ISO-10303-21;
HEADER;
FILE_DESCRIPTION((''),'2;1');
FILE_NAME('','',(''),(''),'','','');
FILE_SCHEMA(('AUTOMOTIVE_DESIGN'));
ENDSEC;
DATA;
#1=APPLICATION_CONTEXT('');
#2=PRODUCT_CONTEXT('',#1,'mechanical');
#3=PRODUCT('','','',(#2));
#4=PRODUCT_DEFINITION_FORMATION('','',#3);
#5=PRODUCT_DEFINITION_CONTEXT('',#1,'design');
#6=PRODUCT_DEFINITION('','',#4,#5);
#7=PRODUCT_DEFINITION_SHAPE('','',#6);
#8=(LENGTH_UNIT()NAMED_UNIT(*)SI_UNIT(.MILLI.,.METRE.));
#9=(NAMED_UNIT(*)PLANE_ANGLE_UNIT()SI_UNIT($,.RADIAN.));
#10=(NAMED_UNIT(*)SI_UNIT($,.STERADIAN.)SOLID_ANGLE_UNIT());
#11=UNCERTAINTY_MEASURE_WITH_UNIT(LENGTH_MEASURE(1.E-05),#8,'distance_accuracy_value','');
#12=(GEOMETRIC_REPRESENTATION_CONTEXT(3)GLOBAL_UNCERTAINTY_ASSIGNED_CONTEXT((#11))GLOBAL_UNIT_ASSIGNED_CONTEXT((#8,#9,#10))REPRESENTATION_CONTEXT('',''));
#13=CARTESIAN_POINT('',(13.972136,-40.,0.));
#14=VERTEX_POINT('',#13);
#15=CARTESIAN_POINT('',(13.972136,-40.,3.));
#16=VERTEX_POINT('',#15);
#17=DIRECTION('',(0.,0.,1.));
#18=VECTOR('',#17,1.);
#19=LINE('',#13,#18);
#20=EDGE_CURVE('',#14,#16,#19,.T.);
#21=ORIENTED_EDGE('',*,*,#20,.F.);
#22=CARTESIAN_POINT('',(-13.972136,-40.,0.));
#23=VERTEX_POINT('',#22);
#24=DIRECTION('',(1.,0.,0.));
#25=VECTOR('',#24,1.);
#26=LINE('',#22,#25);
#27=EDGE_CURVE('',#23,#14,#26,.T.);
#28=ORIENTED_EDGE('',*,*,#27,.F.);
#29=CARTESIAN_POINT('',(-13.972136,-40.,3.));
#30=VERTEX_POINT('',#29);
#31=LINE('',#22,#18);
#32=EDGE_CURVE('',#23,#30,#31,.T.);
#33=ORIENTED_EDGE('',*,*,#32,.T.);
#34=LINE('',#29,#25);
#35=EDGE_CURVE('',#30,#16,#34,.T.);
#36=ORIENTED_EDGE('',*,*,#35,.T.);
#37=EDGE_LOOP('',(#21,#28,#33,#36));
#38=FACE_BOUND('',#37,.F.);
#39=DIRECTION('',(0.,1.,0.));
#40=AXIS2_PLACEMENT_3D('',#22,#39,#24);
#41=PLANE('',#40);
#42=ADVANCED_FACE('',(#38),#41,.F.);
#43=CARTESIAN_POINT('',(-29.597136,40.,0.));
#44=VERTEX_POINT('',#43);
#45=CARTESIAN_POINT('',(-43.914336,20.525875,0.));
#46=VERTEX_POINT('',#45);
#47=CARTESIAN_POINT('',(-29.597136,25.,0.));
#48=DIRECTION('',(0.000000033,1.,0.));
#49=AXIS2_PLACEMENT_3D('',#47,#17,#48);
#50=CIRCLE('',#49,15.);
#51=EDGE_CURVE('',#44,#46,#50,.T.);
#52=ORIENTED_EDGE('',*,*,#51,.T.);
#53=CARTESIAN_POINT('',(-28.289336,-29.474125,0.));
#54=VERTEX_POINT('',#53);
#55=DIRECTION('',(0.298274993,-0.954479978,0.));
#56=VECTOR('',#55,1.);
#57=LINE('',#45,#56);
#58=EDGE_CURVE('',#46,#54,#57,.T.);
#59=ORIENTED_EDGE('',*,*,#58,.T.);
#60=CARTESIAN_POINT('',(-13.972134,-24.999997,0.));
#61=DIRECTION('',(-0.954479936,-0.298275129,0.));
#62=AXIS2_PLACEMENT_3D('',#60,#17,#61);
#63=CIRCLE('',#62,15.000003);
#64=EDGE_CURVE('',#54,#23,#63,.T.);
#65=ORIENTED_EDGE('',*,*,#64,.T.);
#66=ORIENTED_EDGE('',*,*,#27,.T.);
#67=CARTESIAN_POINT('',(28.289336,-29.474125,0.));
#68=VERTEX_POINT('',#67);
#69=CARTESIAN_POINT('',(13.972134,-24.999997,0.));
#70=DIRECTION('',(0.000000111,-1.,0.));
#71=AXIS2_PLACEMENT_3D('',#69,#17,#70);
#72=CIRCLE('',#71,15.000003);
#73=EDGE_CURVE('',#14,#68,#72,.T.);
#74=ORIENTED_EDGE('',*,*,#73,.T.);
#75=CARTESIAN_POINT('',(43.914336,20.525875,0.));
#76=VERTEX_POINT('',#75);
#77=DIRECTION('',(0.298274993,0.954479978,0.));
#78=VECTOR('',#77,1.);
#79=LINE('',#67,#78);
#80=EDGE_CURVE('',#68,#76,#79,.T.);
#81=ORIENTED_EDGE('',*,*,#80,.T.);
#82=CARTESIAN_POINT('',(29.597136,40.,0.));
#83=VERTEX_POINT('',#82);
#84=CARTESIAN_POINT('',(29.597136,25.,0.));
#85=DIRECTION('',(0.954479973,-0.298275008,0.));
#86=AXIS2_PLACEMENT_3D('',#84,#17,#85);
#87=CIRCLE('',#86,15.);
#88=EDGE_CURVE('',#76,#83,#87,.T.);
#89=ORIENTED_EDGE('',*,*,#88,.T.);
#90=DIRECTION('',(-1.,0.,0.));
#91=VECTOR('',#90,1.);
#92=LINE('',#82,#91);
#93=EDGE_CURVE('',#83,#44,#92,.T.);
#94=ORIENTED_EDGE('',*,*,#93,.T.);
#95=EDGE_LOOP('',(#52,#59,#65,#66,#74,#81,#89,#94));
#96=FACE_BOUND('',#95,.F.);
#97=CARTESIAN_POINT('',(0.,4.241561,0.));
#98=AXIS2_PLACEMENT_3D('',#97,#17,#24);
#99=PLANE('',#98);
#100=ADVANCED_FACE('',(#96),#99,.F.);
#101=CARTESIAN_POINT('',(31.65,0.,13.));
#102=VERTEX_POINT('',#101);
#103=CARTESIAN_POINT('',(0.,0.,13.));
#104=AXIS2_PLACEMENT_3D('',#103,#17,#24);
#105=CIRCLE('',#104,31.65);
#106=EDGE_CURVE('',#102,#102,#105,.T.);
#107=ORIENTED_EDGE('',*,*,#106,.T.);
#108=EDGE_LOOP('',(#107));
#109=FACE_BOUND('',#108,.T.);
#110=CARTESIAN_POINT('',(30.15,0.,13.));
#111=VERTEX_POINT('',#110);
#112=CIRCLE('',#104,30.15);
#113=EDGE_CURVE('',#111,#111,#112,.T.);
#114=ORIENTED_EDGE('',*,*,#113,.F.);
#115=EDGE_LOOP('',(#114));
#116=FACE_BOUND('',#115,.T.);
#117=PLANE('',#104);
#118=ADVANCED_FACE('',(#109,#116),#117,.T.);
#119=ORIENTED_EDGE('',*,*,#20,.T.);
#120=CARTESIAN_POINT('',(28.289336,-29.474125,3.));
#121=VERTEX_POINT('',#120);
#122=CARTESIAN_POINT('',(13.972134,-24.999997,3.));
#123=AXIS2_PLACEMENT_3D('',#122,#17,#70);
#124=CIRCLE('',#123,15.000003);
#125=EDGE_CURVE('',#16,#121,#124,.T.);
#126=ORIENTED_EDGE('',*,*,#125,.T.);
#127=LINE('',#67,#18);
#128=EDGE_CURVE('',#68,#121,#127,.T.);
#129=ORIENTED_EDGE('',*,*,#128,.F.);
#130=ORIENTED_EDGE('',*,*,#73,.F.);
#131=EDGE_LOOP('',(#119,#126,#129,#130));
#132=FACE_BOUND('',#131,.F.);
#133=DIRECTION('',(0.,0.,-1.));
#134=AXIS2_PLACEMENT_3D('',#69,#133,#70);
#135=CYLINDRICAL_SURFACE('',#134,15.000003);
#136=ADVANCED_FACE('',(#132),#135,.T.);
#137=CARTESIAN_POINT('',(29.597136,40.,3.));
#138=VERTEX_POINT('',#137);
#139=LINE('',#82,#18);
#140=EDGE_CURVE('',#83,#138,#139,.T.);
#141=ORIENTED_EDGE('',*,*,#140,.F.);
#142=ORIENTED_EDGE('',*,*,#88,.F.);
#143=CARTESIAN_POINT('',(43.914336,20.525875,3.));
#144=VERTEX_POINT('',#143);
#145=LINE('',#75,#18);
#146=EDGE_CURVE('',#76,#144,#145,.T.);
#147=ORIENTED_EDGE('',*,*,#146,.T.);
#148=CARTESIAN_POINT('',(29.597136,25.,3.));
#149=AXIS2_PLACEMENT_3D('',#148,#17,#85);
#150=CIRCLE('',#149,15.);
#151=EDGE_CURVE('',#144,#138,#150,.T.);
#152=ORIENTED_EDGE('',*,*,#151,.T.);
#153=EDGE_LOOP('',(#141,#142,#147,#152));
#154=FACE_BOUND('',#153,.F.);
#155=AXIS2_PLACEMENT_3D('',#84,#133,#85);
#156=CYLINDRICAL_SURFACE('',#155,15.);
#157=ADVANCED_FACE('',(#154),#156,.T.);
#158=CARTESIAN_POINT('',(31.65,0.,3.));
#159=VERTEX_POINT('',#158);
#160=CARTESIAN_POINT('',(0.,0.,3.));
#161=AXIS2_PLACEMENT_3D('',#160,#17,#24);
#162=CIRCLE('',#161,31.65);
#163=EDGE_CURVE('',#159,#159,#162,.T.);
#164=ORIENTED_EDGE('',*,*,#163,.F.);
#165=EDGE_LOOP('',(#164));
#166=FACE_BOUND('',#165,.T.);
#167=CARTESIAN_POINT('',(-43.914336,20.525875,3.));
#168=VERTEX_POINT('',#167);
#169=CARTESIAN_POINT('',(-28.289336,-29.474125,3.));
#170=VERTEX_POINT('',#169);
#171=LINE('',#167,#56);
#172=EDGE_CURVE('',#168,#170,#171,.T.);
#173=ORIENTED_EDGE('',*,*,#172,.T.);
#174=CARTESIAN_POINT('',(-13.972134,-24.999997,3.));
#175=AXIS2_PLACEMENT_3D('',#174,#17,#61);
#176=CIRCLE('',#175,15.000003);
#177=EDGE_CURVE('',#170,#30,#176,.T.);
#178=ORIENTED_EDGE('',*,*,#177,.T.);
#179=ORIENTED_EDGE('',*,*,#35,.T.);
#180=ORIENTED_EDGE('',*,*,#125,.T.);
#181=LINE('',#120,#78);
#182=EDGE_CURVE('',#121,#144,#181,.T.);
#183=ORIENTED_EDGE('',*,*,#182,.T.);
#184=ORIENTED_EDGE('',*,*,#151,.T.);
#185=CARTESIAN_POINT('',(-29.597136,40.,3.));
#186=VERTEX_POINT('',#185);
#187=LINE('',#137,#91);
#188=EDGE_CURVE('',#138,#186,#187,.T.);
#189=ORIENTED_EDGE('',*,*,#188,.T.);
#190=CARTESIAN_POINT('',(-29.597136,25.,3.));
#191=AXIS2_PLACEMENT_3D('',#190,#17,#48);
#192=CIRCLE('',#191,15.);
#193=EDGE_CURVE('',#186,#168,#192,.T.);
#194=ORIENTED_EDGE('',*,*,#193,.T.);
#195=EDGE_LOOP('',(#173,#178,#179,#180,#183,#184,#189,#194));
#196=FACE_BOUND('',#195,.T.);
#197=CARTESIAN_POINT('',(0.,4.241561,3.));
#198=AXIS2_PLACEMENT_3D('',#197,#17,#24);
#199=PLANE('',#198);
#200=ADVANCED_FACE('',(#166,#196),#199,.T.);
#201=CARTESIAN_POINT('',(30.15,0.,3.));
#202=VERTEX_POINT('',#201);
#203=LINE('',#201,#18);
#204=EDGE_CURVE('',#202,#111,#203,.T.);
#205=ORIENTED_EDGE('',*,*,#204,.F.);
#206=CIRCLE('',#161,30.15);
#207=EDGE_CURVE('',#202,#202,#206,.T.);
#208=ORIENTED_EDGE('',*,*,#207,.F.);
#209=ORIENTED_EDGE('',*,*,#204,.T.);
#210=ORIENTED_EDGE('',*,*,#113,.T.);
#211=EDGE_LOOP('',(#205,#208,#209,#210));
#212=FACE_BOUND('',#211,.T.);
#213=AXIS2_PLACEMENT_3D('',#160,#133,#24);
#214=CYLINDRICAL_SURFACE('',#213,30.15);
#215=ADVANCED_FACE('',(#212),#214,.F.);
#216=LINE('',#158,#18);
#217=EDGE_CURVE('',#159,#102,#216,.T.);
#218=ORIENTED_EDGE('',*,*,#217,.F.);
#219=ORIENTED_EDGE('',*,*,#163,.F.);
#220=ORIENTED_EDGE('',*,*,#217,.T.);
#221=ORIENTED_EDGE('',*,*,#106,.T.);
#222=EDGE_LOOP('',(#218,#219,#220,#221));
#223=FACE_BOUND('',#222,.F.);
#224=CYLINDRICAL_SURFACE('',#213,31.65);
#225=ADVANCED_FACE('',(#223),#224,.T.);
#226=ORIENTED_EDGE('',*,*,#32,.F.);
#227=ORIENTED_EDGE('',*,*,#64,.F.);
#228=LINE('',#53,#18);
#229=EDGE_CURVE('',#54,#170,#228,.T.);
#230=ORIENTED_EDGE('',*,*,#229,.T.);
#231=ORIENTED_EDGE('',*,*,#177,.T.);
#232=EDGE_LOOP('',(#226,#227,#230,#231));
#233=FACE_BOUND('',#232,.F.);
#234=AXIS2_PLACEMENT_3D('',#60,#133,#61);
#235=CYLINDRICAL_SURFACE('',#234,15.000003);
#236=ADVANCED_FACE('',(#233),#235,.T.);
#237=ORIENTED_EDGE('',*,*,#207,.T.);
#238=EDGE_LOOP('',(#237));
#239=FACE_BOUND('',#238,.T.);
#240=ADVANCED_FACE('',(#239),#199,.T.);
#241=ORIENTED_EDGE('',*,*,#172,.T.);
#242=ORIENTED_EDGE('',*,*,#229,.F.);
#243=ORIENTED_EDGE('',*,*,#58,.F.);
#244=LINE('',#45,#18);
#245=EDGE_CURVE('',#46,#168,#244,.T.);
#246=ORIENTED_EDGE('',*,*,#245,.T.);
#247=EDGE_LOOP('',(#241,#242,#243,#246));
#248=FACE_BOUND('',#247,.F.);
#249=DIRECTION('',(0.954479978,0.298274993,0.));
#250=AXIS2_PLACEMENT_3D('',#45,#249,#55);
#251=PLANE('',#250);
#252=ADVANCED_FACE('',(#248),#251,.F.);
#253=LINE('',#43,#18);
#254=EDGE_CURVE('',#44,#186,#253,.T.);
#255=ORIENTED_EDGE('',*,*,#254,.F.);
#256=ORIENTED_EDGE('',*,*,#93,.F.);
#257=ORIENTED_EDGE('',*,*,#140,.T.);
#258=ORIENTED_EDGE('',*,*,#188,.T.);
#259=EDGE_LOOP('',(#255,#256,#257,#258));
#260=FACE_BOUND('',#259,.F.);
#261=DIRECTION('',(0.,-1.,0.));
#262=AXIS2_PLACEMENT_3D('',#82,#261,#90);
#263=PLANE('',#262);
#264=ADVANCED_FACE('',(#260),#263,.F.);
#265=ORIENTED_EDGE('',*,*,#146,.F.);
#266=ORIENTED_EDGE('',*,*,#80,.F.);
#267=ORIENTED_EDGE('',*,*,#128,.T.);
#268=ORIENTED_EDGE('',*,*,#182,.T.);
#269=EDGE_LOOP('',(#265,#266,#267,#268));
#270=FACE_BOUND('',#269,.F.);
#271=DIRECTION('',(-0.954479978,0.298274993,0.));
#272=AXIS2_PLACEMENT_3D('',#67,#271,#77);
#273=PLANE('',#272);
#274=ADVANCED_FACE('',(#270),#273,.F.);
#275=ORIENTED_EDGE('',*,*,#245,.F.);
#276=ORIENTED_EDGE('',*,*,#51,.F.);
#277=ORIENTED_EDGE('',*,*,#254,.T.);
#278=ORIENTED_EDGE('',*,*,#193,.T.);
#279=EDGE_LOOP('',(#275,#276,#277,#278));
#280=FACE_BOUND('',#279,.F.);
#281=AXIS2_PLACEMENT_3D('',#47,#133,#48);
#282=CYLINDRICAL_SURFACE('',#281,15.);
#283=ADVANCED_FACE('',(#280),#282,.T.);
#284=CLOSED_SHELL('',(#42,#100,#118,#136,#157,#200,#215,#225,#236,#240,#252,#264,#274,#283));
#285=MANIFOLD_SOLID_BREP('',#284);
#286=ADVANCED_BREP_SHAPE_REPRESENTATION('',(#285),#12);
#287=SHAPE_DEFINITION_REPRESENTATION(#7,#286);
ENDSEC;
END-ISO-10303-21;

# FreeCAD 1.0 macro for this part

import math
import FreeCAD as App
import Part
import Sketcher

doc = App.newDocument("Part")
body = doc.addObject("PartDesign::Body", "Body")

sketch1 = body.newObject("Sketcher::SketchObject", "Sketch")
sketch1.AttachmentSupport = (doc.getObject("XY_Plane"), [""])
sketch1.MapMode = "FlatFace"
sketch1.addGeometry(Part.LineSegment(App.Vector(30, 40, 0), App.Vector(-30, 40, 0)), False)
sketch1.addGeometry(Part.ArcOfCircle(Part.Circle(App.Vector(-30, 25, 0), App.Vector(0, 0, 1), 15), math.radians(90), math.radians(197)), False)
sketch1.addGeometry(Part.LineSegment(App.Vector(-44, 21, 0), App.Vector(-28, -29, 0)), False)
sketch1.addGeometry(Part.ArcOfCircle(Part.Circle(App.Vector(-14, -25, 0), App.Vector(0, 0, 1), 15), math.radians(-163), math.radians(-90)), False)
sketch1.addGeometry(Part.LineSegment(App.Vector(-14, -40, 0), App.Vector(14, -40, 0)), False)
sketch1.addGeometry(Part.ArcOfCircle(Part.Circle(App.Vector(14, -25, 0), App.Vector(0, 0, 1), 15), math.radians(-90), math.radians(-17)), False)
sketch1.addGeometry(Part.LineSegment(App.Vector(28, -29, 0), App.Vector(44, 21, 0)), False)
sketch1.addGeometry(Part.ArcOfCircle(Part.Circle(App.Vector(30, 25, 0), App.Vector(0, 0, 1), 15), math.radians(-17), math.radians(90)), False)
sketch1.addConstraint(Sketcher.Constraint("Tangent", 0, 2, 1, 1))
sketch1.addConstraint(Sketcher.Constraint("Tangent", 1, 2, 2, 1))
sketch1.addConstraint(Sketcher.Constraint("Tangent", 2, 2, 3, 1))
sketch1.addConstraint(Sketcher.Constraint("Tangent", 3, 2, 4, 1))
sketch1.addConstraint(Sketcher.Constraint("Tangent", 4, 2, 5, 1))
sketch1.addConstraint(Sketcher.Constraint("Tangent", 5, 2, 6, 1))
sketch1.addConstraint(Sketcher.Constraint("Tangent", 6, 2, 7, 1))
sketch1.addConstraint(Sketcher.Constraint("Tangent", 7, 2, 0, 1))
sketch1.addConstraint(Sketcher.Constraint("Horizontal", 0))
sketch1.addConstraint(Sketcher.Constraint("Horizontal", 4))
sketch1.addConstraint(Sketcher.Constraint("Equal", 3, 5))
sketch1.addConstraint(Sketcher.Constraint("Equal", 1, 7))
sketch1.addConstraint(Sketcher.Constraint("Symmetric", 2, 2, 5, 2, -2))
sketch1.addConstraint(Sketcher.Constraint("Radius", 1, 15.0))
sketch1.addConstraint(Sketcher.Constraint("DistanceY", -1, 1, 1, 3, 25.0))
sketch1.addConstraint(Sketcher.Constraint("DistanceY", 3, 2, -1, 1, 40.0))
sketch1.addConstraint(Sketcher.Constraint("DistanceY", 2, 2, 1, 2, 50.0))
sketch1.addConstraint(Sketcher.Constraint("DistanceX", 0, 2, 3, 3, 15.625002))
sketch1.addConstraint(Sketcher.Constraint("DistanceX", 0, 2, 0, 1, 59.194272))
pad1 = body.newObject("PartDesign::Pad", "Pad")
pad1.Profile = sketch1
pad1.Length = 3

sketch2 = body.newObject("Sketcher::SketchObject", "Sketch001")
sketch2.AttachmentSupport = (doc.getObject("XY_Plane"), [""])
sketch2.MapMode = "FlatFace"
sketch2.AttachmentOffset = App.Placement(App.Vector(0, 0, 3), App.Rotation())
sketch2.addGeometry(Part.Circle(App.Vector(0, 0, 0), App.Vector(0, 0, 1), 32), False)
sketch2.addGeometry(Part.Circle(App.Vector(0, 0, 0), App.Vector(0, 0, 1), 30), False)
sketch2.addConstraint(Sketcher.Constraint("Coincident", 0, 3, -1, 1))
sketch2.addConstraint(Sketcher.Constraint("Coincident", 1, 3, -1, 1))
sketch2.addConstraint(Sketcher.Constraint("Diameter", 0, 63.3))
sketch2.addConstraint(Sketcher.Constraint("Diameter", 1, 60.3))
pad2 = body.newObject("PartDesign::Pad", "Pad001")
pad2.Profile = sketch2
pad2.Length = 10

doc.recompute()
